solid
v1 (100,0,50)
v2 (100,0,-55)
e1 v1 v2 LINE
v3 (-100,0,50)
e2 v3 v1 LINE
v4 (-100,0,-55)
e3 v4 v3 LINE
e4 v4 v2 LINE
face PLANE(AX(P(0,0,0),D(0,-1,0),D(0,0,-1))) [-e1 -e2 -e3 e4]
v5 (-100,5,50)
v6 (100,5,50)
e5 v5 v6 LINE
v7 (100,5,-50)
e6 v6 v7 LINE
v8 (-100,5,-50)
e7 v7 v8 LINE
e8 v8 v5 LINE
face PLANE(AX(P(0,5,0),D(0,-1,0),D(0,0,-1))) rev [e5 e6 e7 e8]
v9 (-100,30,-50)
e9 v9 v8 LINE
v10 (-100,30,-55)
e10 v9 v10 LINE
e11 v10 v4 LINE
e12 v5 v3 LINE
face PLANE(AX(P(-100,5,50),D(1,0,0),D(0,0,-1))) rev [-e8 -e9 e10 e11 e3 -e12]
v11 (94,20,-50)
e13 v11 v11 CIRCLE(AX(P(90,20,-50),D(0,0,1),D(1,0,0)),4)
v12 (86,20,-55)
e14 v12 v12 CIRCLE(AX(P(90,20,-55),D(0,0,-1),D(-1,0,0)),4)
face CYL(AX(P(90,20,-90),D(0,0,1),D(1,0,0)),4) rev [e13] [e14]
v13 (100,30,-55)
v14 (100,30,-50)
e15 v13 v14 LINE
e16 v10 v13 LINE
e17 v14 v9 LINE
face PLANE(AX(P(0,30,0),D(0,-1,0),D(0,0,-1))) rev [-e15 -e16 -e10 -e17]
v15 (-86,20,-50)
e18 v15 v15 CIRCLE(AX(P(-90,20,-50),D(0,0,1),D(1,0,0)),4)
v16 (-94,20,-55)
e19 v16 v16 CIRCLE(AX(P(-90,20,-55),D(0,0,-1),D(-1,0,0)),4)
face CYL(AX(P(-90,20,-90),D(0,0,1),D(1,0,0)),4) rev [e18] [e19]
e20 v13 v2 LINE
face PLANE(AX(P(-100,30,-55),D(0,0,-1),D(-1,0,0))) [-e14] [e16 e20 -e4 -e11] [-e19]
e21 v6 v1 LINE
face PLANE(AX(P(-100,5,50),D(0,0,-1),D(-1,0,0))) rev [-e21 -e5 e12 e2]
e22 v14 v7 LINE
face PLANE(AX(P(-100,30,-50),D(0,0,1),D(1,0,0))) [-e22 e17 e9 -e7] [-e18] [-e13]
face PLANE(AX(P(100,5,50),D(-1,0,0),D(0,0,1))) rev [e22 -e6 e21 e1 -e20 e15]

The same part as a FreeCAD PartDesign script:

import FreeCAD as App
import Part
import Sketcher
Q = App.Units.Quantity


def add_polygon(sketch, points):
    """Adds a closed chain of lines whose ends are joined by coincident constraints."""
    first, n = sketch.GeometryCount, len(points)
    for a, b in zip(points, points[1:] + points[:1]):
        sketch.addGeometry(Part.LineSegment(App.Vector(*a, 0), App.Vector(*b, 0)), False)
    for i in range(n):
        sketch.addConstraint(Sketcher.Constraint("Coincident", first + i, 2, first + (i + 1) % n, 1))

doc = App.newDocument("Part")
params = doc.addObject("Spreadsheet::Sheet", "Params")
for row, (alias, value) in enumerate([
    ("sketch1_width", "200 mm"),
    ("sketch1_height", "100 mm"),
    ("pad1_length", "5 mm"),
    ("sketch2_width", "200 mm"),
    ("sketch2_height", "5 mm"),
    ("pad2_length", "30 mm"),
    ("sketch3_diameter", "8 mm"),
    ("pocket1_length", "40 mm"),
], start=1):
    params.set(f"A{row}", alias)
    params.set(f"B{row}", "=" + value)
    params.setAlias(f"B{row}", alias)

body = doc.addObject("PartDesign::Body", "Body")

# Sketch on XZ plane
sketch1 = doc.addObject("Sketcher::SketchObject", "Sketch")
body.addObject(sketch1)
sketch1.AttachmentSupport = (doc.XZ_Plane, [""])
sketch1.MapMode = "FlatFace"
add_polygon(sketch1, [(-100, -50), (-100, 50), (100, 50), (100, -50)])  # lines 0-3
sketch1.addConstraint(Sketcher.Constraint("Vertical", 0))
sketch1.addConstraint(Sketcher.Constraint("Horizontal", 1))
sketch1.addConstraint(Sketcher.Constraint("Vertical", 2))
sketch1.addConstraint(Sketcher.Constraint("Horizontal", 3))
sketch1.addConstraint(Sketcher.Constraint("Symmetric", 0, 2, 2, 2, -1, 1))
sketch1.addConstraint(Sketcher.Constraint("DistanceX", 1, 1, 1, 2, Q("200 mm")))
sketch1.addConstraint(Sketcher.Constraint("DistanceY", 0, 1, 0, 2, Q("100 mm")))
sketch1.setExpression("Constraints[9]", "Params.sketch1_width")
sketch1.setExpression("Constraints[10]", "Params.sketch1_height")
pad1 = doc.addObject("PartDesign::Pad", "Pad")
body.addObject(pad1)
pad1.Profile = sketch1
pad1.setExpression("Length", "Params.pad1_length")
pad1.Reversed = True

# Sketch on XZ plane
sketch2 = doc.addObject("Sketcher::SketchObject", "Sketch001")
body.addObject(sketch2)
sketch2.AttachmentSupport = (doc.XZ_Plane, [""])
sketch2.MapMode = "FlatFace"
add_polygon(sketch2, [(-100, -50), (-100, -55), (100, -55), (100, -50)])  # lines 0-3
sketch2.addConstraint(Sketcher.Constraint("Vertical", 0))
sketch2.addConstraint(Sketcher.Constraint("Horizontal", 1))
sketch2.addConstraint(Sketcher.Constraint("Vertical", 2))
sketch2.addConstraint(Sketcher.Constraint("Horizontal", 3))
sketch2.addConstraint(Sketcher.Constraint("DistanceX", 1, 1, 1, 2, Q("200 mm")))
sketch2.addConstraint(Sketcher.Constraint("DistanceY", 0, 2, 0, 1, Q("5 mm")))
sketch2.addConstraint(Sketcher.Constraint("DistanceX", 0, 2, -1, 1, Q("100 mm")))
sketch2.addConstraint(Sketcher.Constraint("DistanceY", 0, 2, -1, 1, Q("55 mm")))
sketch2.setExpression("Constraints[8]", "Params.sketch2_width")
sketch2.setExpression("Constraints[9]", "Params.sketch2_height")
pad2 = doc.addObject("PartDesign::Pad", "Pad001")
body.addObject(pad2)
pad2.Profile = sketch2
pad2.setExpression("Length", "Params.pad2_length")
pad2.Reversed = True

# Sketch on XY plane
sketch3 = doc.addObject("Sketcher::SketchObject", "Sketch002")
body.addObject(sketch3)
sketch3.AttachmentSupport = (doc.XY_Plane, [""])
sketch3.MapMode = "FlatFace"
sketch3.AttachmentOffset = App.Placement(App.Vector(0, 0, -50), App.Rotation())
sketch3.addGeometry(Part.Circle(App.Vector(-90, 20, 0), App.Vector(0, 0, 1), 4), False)
sketch3.addGeometry(Part.Circle(App.Vector(90, 20, 0), App.Vector(0, 0, 1), 4), False)
sketch3.addConstraint(Sketcher.Constraint("Equal", 0, 1))
sketch3.addConstraint(Sketcher.Constraint("Symmetric", 0, 3, 1, 3, -2))
sketch3.addConstraint(Sketcher.Constraint("Diameter", 0, Q("8 mm")))
sketch3.addConstraint(Sketcher.Constraint("DistanceX", 0, 3, -1, 1, Q("90 mm")))
sketch3.addConstraint(Sketcher.Constraint("DistanceY", -1, 1, 0, 3, Q("20 mm")))
sketch3.setExpression("Constraints[2]", "Params.sketch3_diameter")
pocket1 = doc.addObject("PartDesign::Pocket", "Pocket")
body.addObject(pocket1)
pocket1.Profile = sketch3
pocket1.setExpression("Length", "Params.pocket1_length")

doc.recompute()
